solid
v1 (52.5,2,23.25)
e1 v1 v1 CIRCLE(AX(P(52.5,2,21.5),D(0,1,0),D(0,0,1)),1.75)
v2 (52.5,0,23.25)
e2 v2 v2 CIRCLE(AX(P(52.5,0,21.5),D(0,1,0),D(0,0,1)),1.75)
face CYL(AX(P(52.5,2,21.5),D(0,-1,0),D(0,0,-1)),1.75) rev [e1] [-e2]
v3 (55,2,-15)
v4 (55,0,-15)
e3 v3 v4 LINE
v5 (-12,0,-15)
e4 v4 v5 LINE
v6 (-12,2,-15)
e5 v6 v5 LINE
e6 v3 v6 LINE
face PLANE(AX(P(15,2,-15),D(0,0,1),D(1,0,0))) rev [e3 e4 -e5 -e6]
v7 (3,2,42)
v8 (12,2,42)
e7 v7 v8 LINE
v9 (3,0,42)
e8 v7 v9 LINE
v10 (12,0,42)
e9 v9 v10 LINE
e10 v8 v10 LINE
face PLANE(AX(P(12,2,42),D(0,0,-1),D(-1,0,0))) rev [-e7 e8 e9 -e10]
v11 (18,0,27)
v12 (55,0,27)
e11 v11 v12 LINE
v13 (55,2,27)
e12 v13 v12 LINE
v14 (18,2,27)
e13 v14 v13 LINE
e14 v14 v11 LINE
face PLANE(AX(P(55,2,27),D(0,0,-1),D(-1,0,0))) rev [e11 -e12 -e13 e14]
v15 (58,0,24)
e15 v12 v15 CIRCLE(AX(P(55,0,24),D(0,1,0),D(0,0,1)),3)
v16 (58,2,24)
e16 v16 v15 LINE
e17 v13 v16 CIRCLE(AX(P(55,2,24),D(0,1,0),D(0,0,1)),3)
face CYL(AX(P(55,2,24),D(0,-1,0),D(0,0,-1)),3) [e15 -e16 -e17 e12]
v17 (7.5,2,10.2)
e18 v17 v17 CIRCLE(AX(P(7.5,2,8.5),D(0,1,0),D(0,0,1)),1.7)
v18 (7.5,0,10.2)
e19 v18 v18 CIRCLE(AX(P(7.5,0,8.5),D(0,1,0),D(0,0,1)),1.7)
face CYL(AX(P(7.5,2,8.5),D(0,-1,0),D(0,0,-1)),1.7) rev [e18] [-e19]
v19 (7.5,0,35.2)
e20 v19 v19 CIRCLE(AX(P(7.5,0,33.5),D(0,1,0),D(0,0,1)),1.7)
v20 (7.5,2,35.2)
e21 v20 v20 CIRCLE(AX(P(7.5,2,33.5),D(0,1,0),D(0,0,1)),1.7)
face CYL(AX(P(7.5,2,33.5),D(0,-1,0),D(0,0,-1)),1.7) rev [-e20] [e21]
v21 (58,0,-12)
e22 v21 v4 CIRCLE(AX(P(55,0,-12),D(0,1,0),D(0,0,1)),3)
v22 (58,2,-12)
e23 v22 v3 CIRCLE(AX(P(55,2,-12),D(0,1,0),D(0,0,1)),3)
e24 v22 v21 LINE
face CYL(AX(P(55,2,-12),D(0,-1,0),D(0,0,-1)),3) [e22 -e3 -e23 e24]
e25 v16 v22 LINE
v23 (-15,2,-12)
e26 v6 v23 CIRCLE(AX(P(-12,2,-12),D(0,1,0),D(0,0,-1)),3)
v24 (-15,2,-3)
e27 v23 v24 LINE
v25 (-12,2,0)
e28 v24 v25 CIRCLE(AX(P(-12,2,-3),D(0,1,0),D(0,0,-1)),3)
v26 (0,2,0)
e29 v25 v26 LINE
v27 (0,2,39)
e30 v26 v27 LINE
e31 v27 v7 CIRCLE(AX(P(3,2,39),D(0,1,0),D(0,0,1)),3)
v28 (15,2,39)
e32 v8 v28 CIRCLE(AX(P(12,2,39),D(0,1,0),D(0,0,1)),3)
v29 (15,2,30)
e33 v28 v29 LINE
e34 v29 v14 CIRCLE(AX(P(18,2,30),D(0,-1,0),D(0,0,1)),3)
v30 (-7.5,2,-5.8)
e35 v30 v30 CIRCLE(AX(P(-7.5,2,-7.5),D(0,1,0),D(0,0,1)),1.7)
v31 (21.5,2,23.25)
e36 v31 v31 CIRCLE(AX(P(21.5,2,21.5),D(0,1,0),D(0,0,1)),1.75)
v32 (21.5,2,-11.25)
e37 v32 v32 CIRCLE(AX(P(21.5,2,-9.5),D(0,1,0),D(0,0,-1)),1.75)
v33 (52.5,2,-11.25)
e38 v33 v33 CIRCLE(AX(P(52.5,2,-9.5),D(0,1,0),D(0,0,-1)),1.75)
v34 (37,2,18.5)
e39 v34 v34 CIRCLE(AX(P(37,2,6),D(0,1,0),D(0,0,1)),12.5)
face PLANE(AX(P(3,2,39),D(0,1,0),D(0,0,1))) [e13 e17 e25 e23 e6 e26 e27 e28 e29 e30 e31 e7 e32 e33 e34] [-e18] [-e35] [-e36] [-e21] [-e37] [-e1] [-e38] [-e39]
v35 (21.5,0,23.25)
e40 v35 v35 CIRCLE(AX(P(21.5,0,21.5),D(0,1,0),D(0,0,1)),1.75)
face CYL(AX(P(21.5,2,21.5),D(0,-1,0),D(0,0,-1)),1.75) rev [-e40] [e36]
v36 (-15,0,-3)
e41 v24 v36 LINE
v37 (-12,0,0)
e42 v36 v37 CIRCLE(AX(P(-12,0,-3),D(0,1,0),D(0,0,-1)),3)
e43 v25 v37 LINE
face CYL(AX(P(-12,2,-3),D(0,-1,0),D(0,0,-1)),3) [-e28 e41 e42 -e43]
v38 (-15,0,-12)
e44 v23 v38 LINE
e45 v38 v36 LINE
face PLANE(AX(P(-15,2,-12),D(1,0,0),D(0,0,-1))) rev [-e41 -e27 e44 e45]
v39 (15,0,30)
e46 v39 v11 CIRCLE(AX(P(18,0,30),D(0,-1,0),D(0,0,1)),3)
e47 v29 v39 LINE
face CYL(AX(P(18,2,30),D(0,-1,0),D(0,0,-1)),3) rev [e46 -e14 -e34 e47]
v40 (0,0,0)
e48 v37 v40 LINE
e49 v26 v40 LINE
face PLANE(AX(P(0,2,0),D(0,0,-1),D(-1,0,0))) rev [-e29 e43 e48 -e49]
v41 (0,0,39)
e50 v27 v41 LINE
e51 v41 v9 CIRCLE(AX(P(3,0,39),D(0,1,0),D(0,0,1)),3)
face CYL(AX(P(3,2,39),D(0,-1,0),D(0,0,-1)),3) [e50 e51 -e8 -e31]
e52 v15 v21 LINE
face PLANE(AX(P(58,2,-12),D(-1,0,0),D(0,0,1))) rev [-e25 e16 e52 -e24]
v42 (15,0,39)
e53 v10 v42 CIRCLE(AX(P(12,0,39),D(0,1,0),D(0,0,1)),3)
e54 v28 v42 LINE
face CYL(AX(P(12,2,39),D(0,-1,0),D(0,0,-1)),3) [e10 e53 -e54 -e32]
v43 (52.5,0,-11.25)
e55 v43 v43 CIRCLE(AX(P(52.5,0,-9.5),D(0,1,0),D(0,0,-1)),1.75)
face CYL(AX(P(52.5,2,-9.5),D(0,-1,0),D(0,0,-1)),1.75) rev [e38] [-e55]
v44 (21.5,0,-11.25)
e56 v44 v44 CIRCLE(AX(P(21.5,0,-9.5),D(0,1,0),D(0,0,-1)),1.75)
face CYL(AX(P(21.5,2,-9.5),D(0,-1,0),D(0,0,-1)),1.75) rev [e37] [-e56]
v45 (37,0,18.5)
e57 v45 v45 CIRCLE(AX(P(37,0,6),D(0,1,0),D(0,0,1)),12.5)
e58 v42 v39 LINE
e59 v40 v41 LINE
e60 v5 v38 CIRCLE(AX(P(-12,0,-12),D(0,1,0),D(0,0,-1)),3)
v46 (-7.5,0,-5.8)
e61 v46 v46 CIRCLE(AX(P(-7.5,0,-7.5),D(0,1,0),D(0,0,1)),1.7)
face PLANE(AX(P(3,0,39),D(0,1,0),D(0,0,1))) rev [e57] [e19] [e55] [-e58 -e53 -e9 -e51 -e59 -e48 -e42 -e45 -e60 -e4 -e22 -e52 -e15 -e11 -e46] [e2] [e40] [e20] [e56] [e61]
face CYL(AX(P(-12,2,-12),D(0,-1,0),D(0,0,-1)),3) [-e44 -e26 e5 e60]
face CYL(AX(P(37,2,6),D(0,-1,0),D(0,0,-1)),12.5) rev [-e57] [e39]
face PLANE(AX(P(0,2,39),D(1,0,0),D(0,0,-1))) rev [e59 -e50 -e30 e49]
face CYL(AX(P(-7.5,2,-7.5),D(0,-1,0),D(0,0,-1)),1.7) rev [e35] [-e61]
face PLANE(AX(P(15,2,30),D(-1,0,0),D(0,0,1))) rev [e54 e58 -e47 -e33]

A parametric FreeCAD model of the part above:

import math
import FreeCAD as App
import Part
import Sketcher
from FreeCAD import Vector
Q = App.Units.Quantity

doc = App.newDocument("Part")
body = doc.addObject("PartDesign::Body", "Body")

# Sketch on XZ plane
sketch1 = body.newObject("Sketcher::SketchObject", "Sketch")
sketch1.AttachmentSupport = (doc.getObject("XZ_Plane"), [""])
sketch1.MapMode = "FlatFace"
sketch1.addGeometry(Part.LineSegment(Vector(-12, 0, 0), Vector(0, 0, 0)), False)
sketch1.addGeometry(Part.LineSegment(Vector(0, 0, 0), Vector(0, 39, 0)), False)
sketch1.addGeometry(Part.ArcOfCircle(Part.Circle(Vector(3, 39, 0), Vector(0, 0, 1), 3), math.radians(90), math.radians(180)), False)
sketch1.addGeometry(Part.LineSegment(Vector(3, 42, 0), Vector(12, 42, 0)), False)
sketch1.addGeometry(Part.ArcOfCircle(Part.Circle(Vector(12, 39, 0), Vector(0, 0, 1), 3), math.radians(0), math.radians(90)), False)
sketch1.addGeometry(Part.LineSegment(Vector(15, 39, 0), Vector(15, 30, 0)), False)
sketch1.addGeometry(Part.ArcOfCircle(Part.Circle(Vector(18, 30, 0), Vector(0, 0, 1), 3), math.radians(180), math.radians(270)), False)
sketch1.addGeometry(Part.LineSegment(Vector(18, 27, 0), Vector(55, 27, 0)), False)
sketch1.addGeometry(Part.ArcOfCircle(Part.Circle(Vector(55, 24, 0), Vector(0, 0, 1), 3), math.radians(0), math.radians(90)), False)
sketch1.addGeometry(Part.LineSegment(Vector(58, 24, 0), Vector(58, -12, 0)), False)
sketch1.addGeometry(Part.ArcOfCircle(Part.Circle(Vector(55, -12, 0), Vector(0, 0, 1), 3), math.radians(-90), math.radians(0)), False)
sketch1.addGeometry(Part.LineSegment(Vector(55, -15, 0), Vector(-12, -15, 0)), False)
sketch1.addGeometry(Part.ArcOfCircle(Part.Circle(Vector(-12, -12, 0), Vector(0, 0, 1), 3), math.radians(180), math.radians(270)), False)
sketch1.addGeometry(Part.LineSegment(Vector(-15, -12, 0), Vector(-15, -3, 0)), False)
sketch1.addGeometry(Part.ArcOfCircle(Part.Circle(Vector(-12, -3, 0), Vector(0, 0, 1), 3), math.radians(90), math.radians(180)), False)
sketch1.addGeometry(Part.Circle(Vector(52.5, 21.5, 0), Vector(0, 0, 1), 1.8), False)
sketch1.addGeometry(Part.Circle(Vector(7.5, 33.5, 0), Vector(0, 0, 1), 1.7), False)
sketch1.addGeometry(Part.Circle(Vector(21.5, 21.5, 0), Vector(0, 0, 1), 1.8), False)
sketch1.addGeometry(Part.Circle(Vector(37, 6, 0), Vector(0, 0, 1), 12.5), False)
sketch1.addGeometry(Part.Circle(Vector(52.5, -9.5, 0), Vector(0, 0, 1), 1.8), False)
sketch1.addGeometry(Part.Circle(Vector(7.5, 8.5, 0), Vector(0, 0, 1), 1.7), False)
sketch1.addGeometry(Part.Circle(Vector(21.5, -9.5, 0), Vector(0, 0, 1), 1.8), False)
sketch1.addGeometry(Part.Circle(Vector(-7.5, -7.5, 0), Vector(0, 0, 1), 1.7), False)
sketch1.addConstraint(Sketcher.Constraint("Coincident", 0, 2, 1, 1))
sketch1.addConstraint(Sketcher.Constraint("Tangent", 1, 2, 2, 2))
sketch1.addConstraint(Sketcher.Constraint("Tangent", 2, 1, 3, 1))
sketch1.addConstraint(Sketcher.Constraint("Tangent", 3, 2, 4, 2))
sketch1.addConstraint(Sketcher.Constraint("Tangent", 4, 1, 5, 1))
sketch1.addConstraint(Sketcher.Constraint("Tangent", 5, 2, 6, 1))
sketch1.addConstraint(Sketcher.Constraint("Tangent", 6, 2, 7, 1))
sketch1.addConstraint(Sketcher.Constraint("Tangent", 7, 2, 8, 2))
sketch1.addConstraint(Sketcher.Constraint("Tangent", 8, 1, 9, 1))
sketch1.addConstraint(Sketcher.Constraint("Tangent", 9, 2, 10, 2))
sketch1.addConstraint(Sketcher.Constraint("Tangent", 10, 1, 11, 1))
sketch1.addConstraint(Sketcher.Constraint("Tangent", 11, 2, 12, 2))
sketch1.addConstraint(Sketcher.Constraint("Tangent", 12, 1, 13, 1))
sketch1.addConstraint(Sketcher.Constraint("Tangent", 13, 2, 14, 2))
sketch1.addConstraint(Sketcher.Constraint("Tangent", 14, 1, 0, 1))
sketch1.addConstraint(Sketcher.Constraint("Horizontal", 0))
sketch1.addConstraint(Sketcher.Constraint("Vertical", 1))
sketch1.addConstraint(Sketcher.Constraint("Horizontal", 3))
sketch1.addConstraint(Sketcher.Constraint("Vertical", 5))
sketch1.addConstraint(Sketcher.Constraint("Horizontal", 7))
sketch1.addConstraint(Sketcher.Constraint("Vertical", 9))
sketch1.addConstraint(Sketcher.Constraint("Horizontal", 11))
sketch1.addConstraint(Sketcher.Constraint("Vertical", 13))
sketch1.addConstraint(Sketcher.Constraint("Coincident", 0, 2, -1, 1))
sketch1.addConstraint(Sketcher.Constraint("Equal", 2, 4))
sketch1.addConstraint(Sketcher.Constraint("Equal", 4, 6))
sketch1.addConstraint(Sketcher.Constraint("Equal", 6, 8))
sketch1.addConstraint(Sketcher.Constraint("Equal", 8, 10))
sketch1.addConstraint(Sketcher.Constraint("Equal", 10, 12))
sketch1.addConstraint(Sketcher.Constraint("Equal", 12, 14))
sketch1.addConstraint(Sketcher.Constraint("Equal", 15, 17))
sketch1.addConstraint(Sketcher.Constraint("Equal", 17, 19))
sketch1.addConstraint(Sketcher.Constraint("Equal", 16, 20))
sketch1.addConstraint(Sketcher.Constraint("Equal", 19, 21))
sketch1.addConstraint(Sketcher.Constraint("Equal", 20, 22))
sketch1.addConstraint(Sketcher.Constraint("Horizontal", 15, 3, 17, 3))
sketch1.addConstraint(Sketcher.Constraint("Horizontal", 19, 3, 21, 3))
sketch1.addConstraint(Sketcher.Constraint("Vertical", 15, 3, 19, 3))
sketch1.addConstraint(Sketcher.Constraint("Vertical", 16, 3, 20, 3))
sketch1.addConstraint(Sketcher.Constraint("Vertical", 17, 3, 21, 3))
sketch1.addConstraint(Sketcher.Constraint("Equal", 3, 5))
sketch1.addConstraint(Sketcher.Constraint("Equal", 5, 13))
sketch1.addConstraint(Sketcher.Constraint("Diameter", 18, Q("25 mm")))
sketch1.addConstraint(Sketcher.Constraint("Radius", 2, Q("3 mm")))
sketch1.addConstraint(Sketcher.Constraint("Diameter", 15, Q("3.5 mm")))
sketch1.addConstraint(Sketcher.Constraint("Diameter", 16, Q("3.4 mm")))
sketch1.addConstraint(Sketcher.Constraint("DistanceX", 0, 1, 0, 2, Q("12 mm")))
sketch1.addConstraint(Sketcher.Constraint("DistanceX", 3, 1, 3, 2, Q("9 mm")))
sketch1.addConstraint(Sketcher.Constraint("DistanceX", 7, 1, 7, 2, Q("37 mm")))
sketch1.addConstraint(Sketcher.Constraint("DistanceY", 1, 1, 1, 2, Q("39 mm")))
sketch1.addConstraint(Sketcher.Constraint("DistanceX", -1, 1, 18, 3, Q("37 mm")))
sketch1.addConstraint(Sketcher.Constraint("DistanceY", -1, 1, 18, 3, Q("6 mm")))
sketch1.addConstraint(Sketcher.Constraint("DistanceX", 16, 3, 15, 3, Q("45 mm")))
sketch1.addConstraint(Sketcher.Constraint("DistanceY", 15, 3, 16, 3, Q("12 mm")))
sketch1.addConstraint(Sketcher.Constraint("DistanceX", 16, 3, 17, 3, Q("14 mm")))
sketch1.addConstraint(Sketcher.Constraint("DistanceY", 19, 3, 15, 3, Q("31 mm")))
sketch1.addConstraint(Sketcher.Constraint("DistanceY", 20, 3, 17, 3, Q("13 mm")))
sketch1.addConstraint(Sketcher.Constraint("DistanceX", 22, 3, 20, 3, Q("15 mm")))
sketch1.addConstraint(Sketcher.Constraint("DistanceY", 22, 3, 20, 3, Q("16 mm")))
sketch1.addConstraint(Sketcher.Constraint("DistanceX", -1, 1, 15, 3, Q("52.5 mm")))
sketch1.addConstraint(Sketcher.Constraint("DistanceY", -1, 1, 15, 3, Q("21.5 mm")))
pad1 = body.newObject("PartDesign::Pad", "Pad")
pad1.Profile = sketch1
pad1.Length = 2
pad1.Reversed = True

doc.recompute()
